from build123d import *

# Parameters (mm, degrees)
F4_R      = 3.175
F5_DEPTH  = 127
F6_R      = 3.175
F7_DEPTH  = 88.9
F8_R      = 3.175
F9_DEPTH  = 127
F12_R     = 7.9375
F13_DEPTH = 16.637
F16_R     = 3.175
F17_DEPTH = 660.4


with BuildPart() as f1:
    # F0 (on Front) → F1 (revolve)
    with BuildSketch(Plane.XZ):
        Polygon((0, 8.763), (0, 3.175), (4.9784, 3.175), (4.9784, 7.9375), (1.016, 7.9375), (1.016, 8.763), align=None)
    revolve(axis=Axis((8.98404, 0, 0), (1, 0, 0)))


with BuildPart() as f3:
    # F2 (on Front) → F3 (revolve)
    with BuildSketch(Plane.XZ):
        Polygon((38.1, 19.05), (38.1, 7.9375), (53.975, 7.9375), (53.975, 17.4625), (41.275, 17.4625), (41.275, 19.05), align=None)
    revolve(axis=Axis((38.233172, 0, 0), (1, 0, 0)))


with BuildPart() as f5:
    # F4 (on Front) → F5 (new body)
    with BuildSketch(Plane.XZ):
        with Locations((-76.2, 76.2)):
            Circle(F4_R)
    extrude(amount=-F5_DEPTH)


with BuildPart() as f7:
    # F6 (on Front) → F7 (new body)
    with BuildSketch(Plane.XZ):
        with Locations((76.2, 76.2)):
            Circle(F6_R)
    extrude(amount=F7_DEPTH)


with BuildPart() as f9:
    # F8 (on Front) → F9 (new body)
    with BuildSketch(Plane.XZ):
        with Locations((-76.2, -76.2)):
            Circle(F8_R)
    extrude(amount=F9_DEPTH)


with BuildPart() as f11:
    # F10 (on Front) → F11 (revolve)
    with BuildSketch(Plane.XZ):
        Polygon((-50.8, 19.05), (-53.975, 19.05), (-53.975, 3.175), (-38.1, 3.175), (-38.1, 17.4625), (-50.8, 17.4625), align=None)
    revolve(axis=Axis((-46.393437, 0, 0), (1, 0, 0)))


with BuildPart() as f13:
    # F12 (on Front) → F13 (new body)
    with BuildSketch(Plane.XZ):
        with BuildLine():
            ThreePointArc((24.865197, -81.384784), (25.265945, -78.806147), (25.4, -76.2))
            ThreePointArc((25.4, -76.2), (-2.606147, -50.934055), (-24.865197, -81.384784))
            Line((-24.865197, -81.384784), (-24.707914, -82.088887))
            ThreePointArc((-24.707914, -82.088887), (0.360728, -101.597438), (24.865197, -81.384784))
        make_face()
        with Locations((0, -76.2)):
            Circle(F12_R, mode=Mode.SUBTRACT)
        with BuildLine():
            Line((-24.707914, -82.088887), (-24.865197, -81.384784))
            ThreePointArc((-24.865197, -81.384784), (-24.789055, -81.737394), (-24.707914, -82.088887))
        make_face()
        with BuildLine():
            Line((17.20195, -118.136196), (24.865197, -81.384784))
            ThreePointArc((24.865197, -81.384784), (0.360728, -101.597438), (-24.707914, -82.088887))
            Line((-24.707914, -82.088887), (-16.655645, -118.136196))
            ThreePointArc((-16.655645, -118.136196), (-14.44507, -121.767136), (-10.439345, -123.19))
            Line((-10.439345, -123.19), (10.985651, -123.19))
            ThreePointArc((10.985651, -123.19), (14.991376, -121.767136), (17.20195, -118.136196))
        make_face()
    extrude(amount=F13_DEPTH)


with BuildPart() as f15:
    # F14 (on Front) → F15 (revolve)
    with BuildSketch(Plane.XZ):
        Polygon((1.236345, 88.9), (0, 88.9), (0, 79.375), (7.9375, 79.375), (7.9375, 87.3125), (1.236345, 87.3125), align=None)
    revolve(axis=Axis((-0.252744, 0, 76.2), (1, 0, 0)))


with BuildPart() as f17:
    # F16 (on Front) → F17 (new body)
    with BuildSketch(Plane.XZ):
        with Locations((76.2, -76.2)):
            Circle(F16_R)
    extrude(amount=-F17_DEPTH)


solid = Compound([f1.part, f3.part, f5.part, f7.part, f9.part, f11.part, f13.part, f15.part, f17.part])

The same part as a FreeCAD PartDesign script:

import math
import FreeCAD as App
import Part
import Sketcher

V = App.Vector
Q = App.Units.Quantity

doc = App.newDocument("Part")
params = doc.addObject("Spreadsheet::Sheet", "Params")
for row, (alias, value) in enumerate([
    ("sketch1_width", "0.04 in"),
    ("sketch1_height", "0.22 in"),
    ("sketch1_width2", "0.196 in"),
    ("sketch1_height2", "0.1875 in"),
    ("revolution_angle", "360 deg"),
    ("sketch2_width", "0.5 in"),
    ("sketch2_width2", "0.625 in"),
    ("sketch2_height", "0.4375 in"),
    ("sketch2_height2", "0.375 in"),
    ("revolution2_angle", "360 deg"),
    ("sketch3_diameter", "0.25 in"),
    ("pad1_length", "5 in"),
    ("sketch4_diameter", "0.25 in"),
    ("pad2_length", "3.5 in"),
    ("sketch5_diameter", "0.25 in"),
    ("pad3_length", "5 in"),
    ("sketch6_width", "0.5 in"),
    ("sketch6_width2", "0.125 in"),
    ("sketch6_height", "0.5625 in"),
    ("revolution3_angle", "360 deg"),
    ("sketch7_radius", "1 in"),
    ("sketch7_radius2", "0.25 in"),
    ("sketch7_radius3", "0.25 in"),
    ("sketch7_diameter", "0.625 in"),
    ("pad4_length", "0.655 in"),
    ("sketch8_width", "0.3125 in"),
    ("sketch8_height", "0.375 in"),
    ("revolution4_angle", "360 deg"),
    ("sketch9_diameter", "0.25 in"),
    ("pad5_length", "26 in"),
], start=1):
    params.set(f"A{row}", alias)
    params.set(f"B{row}", "=" + value)
    params.setAlias(f"B{row}", alias)

body = doc.addObject("PartDesign::Body", "Body")

# Sketch on XZ plane
sketch1 = body.newObject("Sketcher::SketchObject", "Sketch")
sketch1.AttachmentSupport = (doc.getObject("XZ_Plane"), [""])
sketch1.MapMode = "FlatFace"
sketch1.addGeometry([
    Part.LineSegment(V(0, 8.763, 0), V(0, 3.175, 0)),  # 0
    Part.LineSegment(V(0, 3.175, 0), V(4.9784, 3.175, 0)),  # 1
    Part.LineSegment(V(4.9784, 3.175, 0), V(4.9784, 7.9375, 0)),  # 2
    Part.LineSegment(V(4.9784, 7.9375, 0), V(1.016, 7.9375, 0)),  # 3
    Part.LineSegment(V(1.016, 7.9375, 0), V(1.016, 8.763, 0)),  # 4
    Part.LineSegment(V(1.016, 8.763, 0), V(0, 8.763, 0)),  # 5
], False)
sketch1.addConstraint([
    Sketcher.Constraint("Coincident", 0, 2, 1, 1),
    Sketcher.Constraint("Coincident", 1, 2, 2, 1),
    Sketcher.Constraint("Coincident", 2, 2, 3, 1),
    Sketcher.Constraint("Coincident", 3, 2, 4, 1),
    Sketcher.Constraint("Coincident", 4, 2, 5, 1),
    Sketcher.Constraint("Coincident", 5, 2, 0, 1),
    Sketcher.Constraint("Vertical", 0),
    Sketcher.Constraint("Horizontal", 1),
    Sketcher.Constraint("Vertical", 2),
    Sketcher.Constraint("Horizontal", 3),
    Sketcher.Constraint("Vertical", 4),
    Sketcher.Constraint("Horizontal", 5),
    Sketcher.Constraint("PointOnObject", 0, 2, -2),
    Sketcher.Constraint("DistanceX", 5, 2, 5, 1, Q("0.04 in")),
    Sketcher.Constraint("DistanceY", 0, 2, 0, 1, Q("0.22 in")),
    Sketcher.Constraint("DistanceX", 1, 1, 1, 2, Q("0.196 in")),
    Sketcher.Constraint("DistanceY", 2, 1, 2, 2, Q("0.1875 in")),
    Sketcher.Constraint("DistanceY", -1, 1, 0, 2, Q("0.125 in")),
])
sketch1.setExpression("Constraints[13]", "Params.sketch1_width")
sketch1.setExpression("Constraints[14]", "Params.sketch1_height")
sketch1.setExpression("Constraints[15]", "Params.sketch1_width2")
sketch1.setExpression("Constraints[16]", "Params.sketch1_height2")
revolution = body.newObject("PartDesign::Revolution", "Revolution")
revolution.Profile = sketch1
revolution.ReferenceAxis = (sketch1, ["H_Axis"])
revolution.setExpression("Angle", "Params.revolution_angle")
body2 = doc.addObject("PartDesign::Body", "Body001")

# Sketch on XZ plane
sketch2 = body2.newObject("Sketcher::SketchObject", "Sketch001")
sketch2.AttachmentSupport = (doc.getObject("XZ_Plane001"), [""])
sketch2.MapMode = "FlatFace"
sketch2.addGeometry([
    Part.LineSegment(V(38.1, 19.05, 0), V(38.1, 7.9375, 0)),  # 0
    Part.LineSegment(V(38.1, 7.9375, 0), V(53.975, 7.9375, 0)),  # 1
    Part.LineSegment(V(53.975, 7.9375, 0), V(53.975, 17.4625, 0)),  # 2
    Part.LineSegment(V(53.975, 17.4625, 0), V(41.275, 17.4625, 0)),  # 3
    Part.LineSegment(V(41.275, 17.4625, 0), V(41.275, 19.05, 0)),  # 4
    Part.LineSegment(V(41.275, 19.05, 0), V(38.1, 19.05, 0)),  # 5
], False)
sketch2.addConstraint([
    Sketcher.Constraint("Coincident", 0, 2, 1, 1),
    Sketcher.Constraint("Coincident", 1, 2, 2, 1),
    Sketcher.Constraint("Coincident", 2, 2, 3, 1),
    Sketcher.Constraint("Coincident", 3, 2, 4, 1),
    Sketcher.Constraint("Coincident", 4, 2, 5, 1),
    Sketcher.Constraint("Coincident", 5, 2, 0, 1),
    Sketcher.Constraint("Vertical", 0),
    Sketcher.Constraint("Horizontal", 1),
    Sketcher.Constraint("Vertical", 2),
    Sketcher.Constraint("Horizontal", 3),
    Sketcher.Constraint("Vertical", 4),
    Sketcher.Constraint("Horizontal", 5),
    Sketcher.Constraint("DistanceX", 3, 2, 3, 1, Q("0.5 in")),
    Sketcher.Constraint("DistanceX", -1, 1, 0, 2, Q("1.5 in")),
    Sketcher.Constraint("DistanceX", 1, 1, 1, 2, Q("0.625 in")),
    Sketcher.Constraint("DistanceY", 0, 2, 0, 1, Q("0.4375 in")),
    Sketcher.Constraint("DistanceY", 2, 1, 2, 2, Q("0.375 in")),
    Sketcher.Constraint("DistanceY", -1, 1, 4, 2, Q("0.75 in")),
])
sketch2.setExpression("Constraints[12]", "Params.sketch2_width")
sketch2.setExpression("Constraints[14]", "Params.sketch2_width2")
sketch2.setExpression("Constraints[15]", "Params.sketch2_height")
sketch2.setExpression("Constraints[16]", "Params.sketch2_height2")
revolution2 = body2.newObject("PartDesign::Revolution", "Revolution001")
revolution2.Profile = sketch2
revolution2.ReferenceAxis = (sketch2, ["H_Axis"])
revolution2.setExpression("Angle", "Params.revolution2_angle")
body3 = doc.addObject("PartDesign::Body", "Body002")

# Sketch on XZ plane
sketch3 = body3.newObject("Sketcher::SketchObject", "Sketch002")
sketch3.AttachmentSupport = (doc.getObject("XZ_Plane002"), [""])
sketch3.MapMode = "FlatFace"
sketch3.addGeometry(Part.Circle(V(-76.2, 76.2, 0), V(0, 0, 1), 3.175), False)
sketch3.addConstraint([
    Sketcher.Constraint("Diameter", 0, Q("0.25 in")),
    Sketcher.Constraint("DistanceX", 0, 3, -1, 1, Q("3 in")),
    Sketcher.Constraint("DistanceY", -1, 1, 0, 3, Q("3 in")),
])
sketch3.setExpression("Constraints[0]", "Params.sketch3_diameter")
pad1 = body3.newObject("PartDesign::Pad", "Pad")
pad1.Profile = sketch3
pad1.setExpression("Length", "Params.pad1_length")
pad1.Reversed = True
body4 = doc.addObject("PartDesign::Body", "Body003")

# Sketch on XZ plane
sketch4 = body4.newObject("Sketcher::SketchObject", "Sketch003")
sketch4.AttachmentSupport = (doc.getObject("XZ_Plane003"), [""])
sketch4.MapMode = "FlatFace"
sketch4.addGeometry(Part.Circle(V(76.2, 76.2, 0), V(0, 0, 1), 3.175), False)
sketch4.addConstraint([
    Sketcher.Constraint("Diameter", 0, Q("0.25 in")),
    Sketcher.Constraint("DistanceX", -1, 1, 0, 3, Q("3 in")),
    Sketcher.Constraint("DistanceY", -1, 1, 0, 3, Q("3 in")),
])
sketch4.setExpression("Constraints[0]", "Params.sketch4_diameter")
pad2 = body4.newObject("PartDesign::Pad", "Pad001")
pad2.Profile = sketch4
pad2.setExpression("Length", "Params.pad2_length")
body5 = doc.addObject("PartDesign::Body", "Body004")

# Sketch on XZ plane
sketch5 = body5.newObject("Sketcher::SketchObject", "Sketch004")
sketch5.AttachmentSupport = (doc.getObject("XZ_Plane004"), [""])
sketch5.MapMode = "FlatFace"
sketch5.addGeometry(Part.Circle(V(-76.2, -76.2, 0), V(0, 0, 1), 3.175), False)
sketch5.addConstraint([
    Sketcher.Constraint("Diameter", 0, Q("0.25 in")),
    Sketcher.Constraint("DistanceX", 0, 3, -1, 1, Q("3 in")),
    Sketcher.Constraint("DistanceY", 0, 3, -1, 1, Q("3 in")),
])
sketch5.setExpression("Constraints[0]", "Params.sketch5_diameter")
pad3 = body5.newObject("PartDesign::Pad", "Pad002")
pad3.Profile = sketch5
pad3.setExpression("Length", "Params.pad3_length")
body6 = doc.addObject("PartDesign::Body", "Body005")

# Sketch on XZ plane
sketch6 = body6.newObject("Sketcher::SketchObject", "Sketch005")
sketch6.AttachmentSupport = (doc.getObject("XZ_Plane005"), [""])
sketch6.MapMode = "FlatFace"
sketch6.addGeometry([
    Part.LineSegment(V(-50.8, 19.05, 0), V(-53.975, 19.05, 0)),  # 0
    Part.LineSegment(V(-53.975, 19.05, 0), V(-53.975, 3.175, 0)),  # 1
    Part.LineSegment(V(-53.975, 3.175, 0), V(-38.1, 3.175, 0)),  # 2
    Part.LineSegment(V(-38.1, 3.175, 0), V(-38.1, 17.4625, 0)),  # 3
    Part.LineSegment(V(-38.1, 17.4625, 0), V(-50.8, 17.4625, 0)),  # 4
    Part.LineSegment(V(-50.8, 17.4625, 0), V(-50.8, 19.05, 0)),  # 5
], False)
sketch6.addConstraint([
    Sketcher.Constraint("Coincident", 0, 2, 1, 1),
    Sketcher.Constraint("Coincident", 1, 2, 2, 1),
    Sketcher.Constraint("Coincident", 2, 2, 3, 1),
    Sketcher.Constraint("Coincident", 3, 2, 4, 1),
    Sketcher.Constraint("Coincident", 4, 2, 5, 1),
    Sketcher.Constraint("Coincident", 5, 2, 0, 1),
    Sketcher.Constraint("Horizontal", 0),
    Sketcher.Constraint("Vertical", 1),
    Sketcher.Constraint("Horizontal", 2),
    Sketcher.Constraint("Vertical", 3),
    Sketcher.Constraint("Horizontal", 4),
    Sketcher.Constraint("Vertical", 5),
    Sketcher.Constraint("Equal", 2, 1),
    Sketcher.Constraint("DistanceX", 4, 2, 4, 1, Q("0.5 in")),
    Sketcher.Constraint("DistanceX", 4, 2, -1, 1, Q("2 in")),
    Sketcher.Constraint("DistanceX", 0, 2, 0, 1, Q("0.125 in")),
    Sketcher.Constraint("DistanceY", 3, 1, 3, 2, Q("0.5625 in")),
    Sketcher.Constraint("DistanceY", -1, 1, 0, 2, Q("0.75 in")),
])
sketch6.setExpression("Constraints[13]", "Params.sketch6_width")
sketch6.setExpression("Constraints[15]", "Params.sketch6_width2")
sketch6.setExpression("Constraints[16]", "Params.sketch6_height")
revolution3 = body6.newObject("PartDesign::Revolution", "Revolution002")
revolution3.Profile = sketch6
revolution3.ReferenceAxis = (sketch6, ["H_Axis"])
revolution3.setExpression("Angle", "Params.revolution3_angle")
body7 = doc.addObject("PartDesign::Body", "Body006")

# Sketch on XZ plane
sketch7 = body7.newObject("Sketcher::SketchObject", "Sketch006")
sketch7.AttachmentSupport = (doc.getObject("XZ_Plane006"), [""])
sketch7.MapMode = "FlatFace"
sketch7.addGeometry([
    Part.ArcOfCircle(Part.Circle(V(-0.000091, -76.199991, 0), V(0, 0, 1), 25.400091), math.radians(-11.77828), math.radians(-0.00002)),  # 0
    Part.ArcOfCircle(Part.Circle(V(0, -76.2, 0), V(0, 0, 1), 25.4), math.radians(0.000001), math.radians(191.778302)),  # 1
    Part.ArcOfCircle(Part.Circle(V(0.004867, -76.198911, 0), V(0, 0, 1), 25.404987), math.radians(-168.221533), math.radians(-166.594381)),  # 2
    Part.LineSegment(V(-24.707914, -82.088887, 0), V(-16.655645, -118.136196, 0)),  # 3
    Part.ArcOfCircle(Part.Circle(V(-10.439345, -116.839999, 0), V(0, 0, 1), 6.350001), math.radians(-168.221688), math.radians(-90.000002)),  # 4
    Part.LineSegment(V(-10.439345, -123.19, 0), V(10.985651, -123.19, 0)),  # 5
    Part.ArcOfCircle(Part.Circle(V(10.985652, -116.840001, 0), V(0, 0, 1), 6.349999), math.radians(-90.000005), math.radians(-11.778296)),  # 6
    Part.LineSegment(V(17.20195, -118.136196, 0), V(24.865197, -81.384784, 0)),  # 7
    Part.Circle(V(0, -76.2, 0), V(0, 0, 1), 7.9375),  # 8
], False)
sketch7.addConstraint([
    Sketcher.Constraint("Coincident", 0, 2, 1, 1),
    Sketcher.Constraint("Coincident", 1, 2, 2, 1),
    Sketcher.Constraint("Coincident", 2, 2, 3, 1),
    Sketcher.Constraint("Coincident", 3, 2, 4, 1),
    Sketcher.Constraint("Coincident", 4, 2, 5, 1),
    Sketcher.Constraint("Coincident", 5, 2, 6, 1),
    Sketcher.Constraint("Coincident", 6, 2, 7, 1),
    Sketcher.Constraint("Coincident", 7, 2, 0, 1),
    Sketcher.Constraint("Horizontal", 5),
    Sketcher.Constraint("Coincident", 8, 3, 1, 3),
    Sketcher.Constraint("PointOnObject", 1, 3, -2),
    Sketcher.Constraint("Radius", 1, Q("1 in")),
    Sketcher.Constraint("Radius", 4, Q("0.25 in")),
    Sketcher.Constraint("Radius", 6, Q("0.25 in")),
    Sketcher.Constraint("Diameter", 8, Q("0.625 in")),
    Sketcher.Constraint("DistanceY", 1, 3, -1, 1, Q("3 in")),
    Sketcher.Constraint("DistanceY", 0, 2, -1, 1, Q("3 in")),
    Sketcher.Constraint("DistanceY", 4, 3, -1, 1, Q("4.6 in")),
    Sketcher.Constraint("Radius", 0, 25.400091),
    Sketcher.Constraint("Radius", 2, 25.404987),
    Sketcher.Constraint("DistanceX", 3, 2, 4, 3, 6.2163),
    Sketcher.Constraint("DistanceX", 3, 2, 4, 2, 6.2163),
    Sketcher.Constraint("DistanceX", 6, 3, 6, 2, 6.216298),
    Sketcher.Constraint("DistanceX", 5, 2, 6, 2, 6.216299),
    Sketcher.Constraint("Distance", 3, 36.935721),
    Sketcher.Constraint("DistanceX", 5, 1, 5, 2, 21.424996),
    Sketcher.Constraint("DistanceY", 0, 3, -1, 1, 76.199991),
    Sketcher.Constraint("DistanceY", 2, 3, -1, 1, 76.198911),
    Sketcher.Constraint("DistanceX", -1, 1, 6, 3, 10.985652),
    Sketcher.Constraint("DistanceY", 3, 2, 1, 2, 36.751412),
    Sketcher.Constraint("DistanceX", 2, 3, 7, 2, 24.86033),
])
sketch7.setExpression("Constraints[11]", "Params.sketch7_radius")
sketch7.setExpression("Constraints[12]", "Params.sketch7_radius2")
sketch7.setExpression("Constraints[13]", "Params.sketch7_radius3")
sketch7.setExpression("Constraints[14]", "Params.sketch7_diameter")
pad4 = body7.newObject("PartDesign::Pad", "Pad003")
pad4.Profile = sketch7
pad4.setExpression("Length", "Params.pad4_length")
body8 = doc.addObject("PartDesign::Body", "Body007")

# Sketch on XZ plane
sketch8 = body8.newObject("Sketcher::SketchObject", "Sketch007")
sketch8.AttachmentSupport = (doc.getObject("XZ_Plane007"), [""])
sketch8.MapMode = "FlatFace"
sketch8.addGeometry([
    Part.LineSegment(V(1.236345, 88.9, 0), V(0, 88.9, 0)),  # 0
    Part.LineSegment(V(0, 88.9, 0), V(0, 79.375, 0)),  # 1
    Part.LineSegment(V(0, 79.375, 0), V(7.9375, 79.375, 0)),  # 2
    Part.LineSegment(V(7.9375, 79.375, 0), V(7.9375, 87.3125, 0)),  # 3
    Part.LineSegment(V(7.9375, 87.3125, 0), V(1.236345, 87.3125, 0)),  # 4
    Part.LineSegment(V(1.236345, 87.3125, 0), V(1.236345, 88.9, 0)),  # 5
], False)
sketch8.addGeometry(Part.LineSegment(V(0, 76.2, 0), V(7.9375, 76.2, 0)), True)  # axis
sketch8.addConstraint([
    Sketcher.Constraint("Coincident", 0, 2, 1, 1),
    Sketcher.Constraint("Coincident", 1, 2, 2, 1),
    Sketcher.Constraint("Coincident", 2, 2, 3, 1),
    Sketcher.Constraint("Coincident", 3, 2, 4, 1),
    Sketcher.Constraint("Coincident", 4, 2, 5, 1),
    Sketcher.Constraint("Coincident", 5, 2, 0, 1),
    Sketcher.Constraint("Horizontal", 0),
    Sketcher.Constraint("Vertical", 1),
    Sketcher.Constraint("Horizontal", 2),
    Sketcher.Constraint("Vertical", 3),
    Sketcher.Constraint("Horizontal", 4),
    Sketcher.Constraint("Vertical", 5),
    Sketcher.Constraint("Horizontal", 6),
    Sketcher.Constraint("PointOnObject", 0, 2, -2),
    Sketcher.Constraint("PointOnObject", 6, 1, -2),
    Sketcher.Constraint("Vertical", 3, 2, 6, 2),
    Sketcher.Constraint("Equal", 6, 3),
    Sketcher.Constraint("DistanceY", -1, 1, 6, 1, Q("3 in")),
    Sketcher.Constraint("DistanceY", -1, 1, 0, 2, Q("3.5 in")),
    Sketcher.Constraint("DistanceX", 2, 1, 2, 2, Q("0.3125 in")),
    Sketcher.Constraint("DistanceY", 1, 2, 1, 1, Q("0.375 in")),
    Sketcher.Constraint("DistanceX", 0, 2, 0, 1, 1.236345),
])
sketch8.setExpression("Constraints[19]", "Params.sketch8_width")
sketch8.setExpression("Constraints[20]", "Params.sketch8_height")
revolution4 = body8.newObject("PartDesign::Revolution", "Revolution003")
revolution4.Profile = sketch8
revolution4.ReferenceAxis = (sketch8, ["Axis0"])
revolution4.setExpression("Angle", "Params.revolution4_angle")
body9 = doc.addObject("PartDesign::Body", "Body008")

# Sketch on XZ plane
sketch9 = body9.newObject("Sketcher::SketchObject", "Sketch008")
sketch9.AttachmentSupport = (doc.getObject("XZ_Plane008"), [""])
sketch9.MapMode = "FlatFace"
sketch9.addGeometry(Part.Circle(V(76.2, -76.2, 0), V(0, 0, 1), 3.175), False)
sketch9.addConstraint([
    Sketcher.Constraint("Diameter", 0, Q("0.25 in")),
    Sketcher.Constraint("DistanceX", -1, 1, 0, 3, Q("3 in")),
    Sketcher.Constraint("DistanceY", 0, 3, -1, 1, Q("3 in")),
])
sketch9.setExpression("Constraints[0]", "Params.sketch9_diameter")
pad5 = body9.newObject("PartDesign::Pad", "Pad004")
pad5.Profile = sketch9
pad5.setExpression("Length", "Params.pad5_length")
pad5.Reversed = True

doc.recompute()
